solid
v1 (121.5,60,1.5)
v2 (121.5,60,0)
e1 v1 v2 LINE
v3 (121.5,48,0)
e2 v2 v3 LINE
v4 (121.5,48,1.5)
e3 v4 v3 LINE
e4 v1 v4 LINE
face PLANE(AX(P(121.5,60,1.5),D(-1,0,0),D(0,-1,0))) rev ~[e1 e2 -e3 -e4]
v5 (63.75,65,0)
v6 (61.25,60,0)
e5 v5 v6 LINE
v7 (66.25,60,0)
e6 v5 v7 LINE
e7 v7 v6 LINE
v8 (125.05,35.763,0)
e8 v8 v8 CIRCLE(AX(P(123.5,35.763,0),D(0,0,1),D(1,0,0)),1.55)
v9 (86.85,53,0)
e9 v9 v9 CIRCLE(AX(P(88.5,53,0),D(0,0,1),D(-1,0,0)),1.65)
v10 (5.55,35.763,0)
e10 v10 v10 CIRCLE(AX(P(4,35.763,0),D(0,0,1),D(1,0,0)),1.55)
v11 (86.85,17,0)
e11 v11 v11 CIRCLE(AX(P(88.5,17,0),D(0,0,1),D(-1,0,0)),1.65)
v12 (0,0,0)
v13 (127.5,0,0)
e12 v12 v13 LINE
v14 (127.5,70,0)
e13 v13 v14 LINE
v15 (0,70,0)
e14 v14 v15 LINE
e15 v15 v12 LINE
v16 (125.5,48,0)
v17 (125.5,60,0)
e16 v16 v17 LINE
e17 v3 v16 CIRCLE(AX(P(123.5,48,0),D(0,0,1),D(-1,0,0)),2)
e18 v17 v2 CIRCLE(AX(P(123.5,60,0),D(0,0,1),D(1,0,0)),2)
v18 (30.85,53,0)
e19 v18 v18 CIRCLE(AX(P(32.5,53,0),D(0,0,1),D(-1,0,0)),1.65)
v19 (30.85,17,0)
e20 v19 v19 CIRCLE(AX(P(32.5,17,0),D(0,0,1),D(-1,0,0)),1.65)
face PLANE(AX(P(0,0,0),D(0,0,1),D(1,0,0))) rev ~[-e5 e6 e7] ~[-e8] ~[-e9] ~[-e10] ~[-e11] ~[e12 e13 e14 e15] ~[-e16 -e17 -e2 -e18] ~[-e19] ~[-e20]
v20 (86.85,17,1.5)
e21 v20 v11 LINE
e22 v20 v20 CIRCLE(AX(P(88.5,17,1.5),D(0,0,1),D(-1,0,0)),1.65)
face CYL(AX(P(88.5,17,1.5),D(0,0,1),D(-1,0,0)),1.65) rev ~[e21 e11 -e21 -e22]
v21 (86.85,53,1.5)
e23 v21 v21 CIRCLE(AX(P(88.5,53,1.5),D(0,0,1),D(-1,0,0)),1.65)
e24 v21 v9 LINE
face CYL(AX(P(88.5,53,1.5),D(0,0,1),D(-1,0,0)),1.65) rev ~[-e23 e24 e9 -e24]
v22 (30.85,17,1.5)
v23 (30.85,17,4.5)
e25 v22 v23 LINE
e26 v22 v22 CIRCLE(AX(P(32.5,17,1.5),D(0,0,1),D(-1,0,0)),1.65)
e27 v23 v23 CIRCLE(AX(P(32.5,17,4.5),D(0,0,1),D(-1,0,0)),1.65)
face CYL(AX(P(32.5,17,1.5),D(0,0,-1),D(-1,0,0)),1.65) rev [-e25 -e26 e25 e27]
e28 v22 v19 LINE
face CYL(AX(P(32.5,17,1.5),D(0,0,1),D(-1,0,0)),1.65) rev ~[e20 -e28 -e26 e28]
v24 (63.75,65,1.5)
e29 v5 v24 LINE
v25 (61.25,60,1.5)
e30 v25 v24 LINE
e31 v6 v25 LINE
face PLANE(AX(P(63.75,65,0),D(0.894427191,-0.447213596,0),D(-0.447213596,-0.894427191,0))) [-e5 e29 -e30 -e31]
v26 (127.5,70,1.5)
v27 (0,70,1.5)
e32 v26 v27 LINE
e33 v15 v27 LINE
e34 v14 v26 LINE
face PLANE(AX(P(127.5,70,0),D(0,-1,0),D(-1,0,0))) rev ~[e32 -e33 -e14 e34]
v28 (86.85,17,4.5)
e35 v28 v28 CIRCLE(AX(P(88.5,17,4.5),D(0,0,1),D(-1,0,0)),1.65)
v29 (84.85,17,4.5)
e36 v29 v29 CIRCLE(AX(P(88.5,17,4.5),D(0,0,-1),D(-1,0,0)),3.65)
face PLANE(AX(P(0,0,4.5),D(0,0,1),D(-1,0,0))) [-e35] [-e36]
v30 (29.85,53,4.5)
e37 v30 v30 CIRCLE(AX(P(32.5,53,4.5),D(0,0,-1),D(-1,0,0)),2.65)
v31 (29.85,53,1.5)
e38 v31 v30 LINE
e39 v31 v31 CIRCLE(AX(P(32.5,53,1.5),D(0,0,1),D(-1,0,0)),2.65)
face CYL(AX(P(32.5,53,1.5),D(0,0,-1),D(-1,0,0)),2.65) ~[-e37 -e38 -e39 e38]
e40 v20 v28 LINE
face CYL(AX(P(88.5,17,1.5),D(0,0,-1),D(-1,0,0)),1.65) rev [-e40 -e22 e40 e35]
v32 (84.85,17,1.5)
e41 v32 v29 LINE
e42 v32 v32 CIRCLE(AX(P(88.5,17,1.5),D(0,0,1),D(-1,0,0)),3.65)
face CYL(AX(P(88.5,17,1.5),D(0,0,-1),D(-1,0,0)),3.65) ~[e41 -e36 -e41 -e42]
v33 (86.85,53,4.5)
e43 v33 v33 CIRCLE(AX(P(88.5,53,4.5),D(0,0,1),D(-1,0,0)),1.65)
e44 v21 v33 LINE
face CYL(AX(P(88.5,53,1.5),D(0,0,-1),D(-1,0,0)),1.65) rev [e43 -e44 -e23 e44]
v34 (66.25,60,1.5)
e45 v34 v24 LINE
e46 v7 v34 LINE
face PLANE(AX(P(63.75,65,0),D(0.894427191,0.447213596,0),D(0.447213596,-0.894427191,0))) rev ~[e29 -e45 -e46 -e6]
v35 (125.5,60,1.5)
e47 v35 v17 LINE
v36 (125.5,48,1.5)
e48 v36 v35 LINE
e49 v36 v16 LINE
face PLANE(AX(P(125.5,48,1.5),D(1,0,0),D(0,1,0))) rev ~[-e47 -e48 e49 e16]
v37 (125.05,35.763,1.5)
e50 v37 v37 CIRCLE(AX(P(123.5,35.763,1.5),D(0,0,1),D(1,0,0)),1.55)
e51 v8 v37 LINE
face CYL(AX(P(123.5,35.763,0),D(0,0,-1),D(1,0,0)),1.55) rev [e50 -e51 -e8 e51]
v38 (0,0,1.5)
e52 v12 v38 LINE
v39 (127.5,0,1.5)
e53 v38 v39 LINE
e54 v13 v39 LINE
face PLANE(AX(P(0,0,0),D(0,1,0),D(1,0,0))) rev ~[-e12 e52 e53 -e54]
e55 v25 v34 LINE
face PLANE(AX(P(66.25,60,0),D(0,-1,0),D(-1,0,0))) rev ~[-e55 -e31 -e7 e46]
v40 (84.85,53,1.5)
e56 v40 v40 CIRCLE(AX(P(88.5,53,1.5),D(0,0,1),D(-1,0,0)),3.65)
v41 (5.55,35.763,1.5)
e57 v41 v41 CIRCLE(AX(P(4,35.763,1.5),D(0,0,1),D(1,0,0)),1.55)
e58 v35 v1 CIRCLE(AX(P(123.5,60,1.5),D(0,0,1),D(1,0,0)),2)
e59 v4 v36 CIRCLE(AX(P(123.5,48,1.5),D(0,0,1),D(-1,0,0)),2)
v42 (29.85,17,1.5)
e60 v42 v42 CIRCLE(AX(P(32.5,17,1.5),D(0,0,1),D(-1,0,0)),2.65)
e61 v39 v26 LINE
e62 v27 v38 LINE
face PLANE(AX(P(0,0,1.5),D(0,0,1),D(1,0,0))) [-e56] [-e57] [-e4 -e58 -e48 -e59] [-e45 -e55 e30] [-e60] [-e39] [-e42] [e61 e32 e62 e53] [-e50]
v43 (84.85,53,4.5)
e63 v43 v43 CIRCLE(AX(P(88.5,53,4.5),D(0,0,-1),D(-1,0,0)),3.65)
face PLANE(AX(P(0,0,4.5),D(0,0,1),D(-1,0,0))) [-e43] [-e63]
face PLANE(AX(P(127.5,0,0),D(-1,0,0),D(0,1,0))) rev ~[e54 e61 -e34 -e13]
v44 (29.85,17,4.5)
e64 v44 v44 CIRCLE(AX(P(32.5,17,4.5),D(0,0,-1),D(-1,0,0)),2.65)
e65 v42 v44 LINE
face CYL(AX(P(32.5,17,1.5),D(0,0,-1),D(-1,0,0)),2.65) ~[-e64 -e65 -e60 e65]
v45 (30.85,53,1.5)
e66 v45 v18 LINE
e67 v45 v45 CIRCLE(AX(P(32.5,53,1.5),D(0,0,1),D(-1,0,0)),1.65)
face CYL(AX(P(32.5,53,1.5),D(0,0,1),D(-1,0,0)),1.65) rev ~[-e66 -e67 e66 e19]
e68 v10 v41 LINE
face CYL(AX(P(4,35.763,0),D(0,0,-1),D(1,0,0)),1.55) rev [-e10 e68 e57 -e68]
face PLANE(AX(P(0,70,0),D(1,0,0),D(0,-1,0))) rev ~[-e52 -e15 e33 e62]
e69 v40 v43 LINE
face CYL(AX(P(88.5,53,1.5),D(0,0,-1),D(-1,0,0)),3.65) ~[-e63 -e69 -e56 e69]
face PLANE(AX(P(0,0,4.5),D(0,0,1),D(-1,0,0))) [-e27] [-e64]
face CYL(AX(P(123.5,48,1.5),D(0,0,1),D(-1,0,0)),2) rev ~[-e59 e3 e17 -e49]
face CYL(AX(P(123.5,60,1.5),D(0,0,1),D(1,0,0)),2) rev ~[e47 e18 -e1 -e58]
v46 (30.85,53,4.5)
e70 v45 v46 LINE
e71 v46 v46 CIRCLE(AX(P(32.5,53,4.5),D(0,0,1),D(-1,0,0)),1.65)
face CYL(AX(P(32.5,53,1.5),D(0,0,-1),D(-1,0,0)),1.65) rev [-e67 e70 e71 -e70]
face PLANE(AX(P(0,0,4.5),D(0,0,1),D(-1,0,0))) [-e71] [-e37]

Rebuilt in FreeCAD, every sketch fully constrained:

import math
import FreeCAD as App
import Part
import Sketcher

doc = App.newDocument("Part")
params = doc.addObject("Spreadsheet::Sheet", "Params")
for row, (alias, value) in enumerate([
    ("sketch1_diameter", "3.1 mm"),
    ("sketch1_height", "70 mm"),
    ("sketch1_width", "127.5 mm"),
    ("pad1_length", "1.5 mm"),
    ("sketch2_width", "5 mm"),
    ("pocket1_length", "3 mm"),
    ("sketch3_diameter", "7.3 mm"),
    ("sketch3_diameter2", "3.3 mm"),
    ("sketch3_diameter3", "5.3 mm"),
    ("pad2_length", "3 mm"),
    ("sketch4_diameter", "3.3 mm"),
    ("pocket2_length", "4 mm"),
    ("sketch5_radius", "2 mm"),
    ("sketch5_height", "12 mm"),
    ("pocket3_length", "4 mm"),
], start=1):
    params.set(f"A{row}", alias)
    params.set(f"B{row}", "=" + value)
    params.setAlias(f"B{row}", alias)

body = doc.addObject("PartDesign::Body", "Body")

sketch1 = body.newObject("Sketcher::SketchObject", "Sketch")
sketch1.AttachmentSupport = (doc.getObject("XY_Plane"), [""])
sketch1.MapMode = "FlatFace"
sketch1.addGeometry(Part.LineSegment(App.Vector(0, 70, 0), App.Vector(0, 0, 0)), False)
sketch1.addGeometry(Part.LineSegment(App.Vector(0, 0, 0), App.Vector(127.5, 0, 0)), False)
sketch1.addGeometry(Part.LineSegment(App.Vector(127.5, 0, 0), App.Vector(127.5, 70, 0)), False)
sketch1.addGeometry(Part.LineSegment(App.Vector(127.5, 70, 0), App.Vector(0, 70, 0)), False)
sketch1.addGeometry(Part.Circle(App.Vector(4, 35.763, 0), App.Vector(0, 0, 1), 1.55), False)
sketch1.addGeometry(Part.Circle(App.Vector(123.5, 35.763, 0), App.Vector(0, 0, 1), 1.55), False)
sketch1.addConstraint(Sketcher.Constraint("Coincident", 0, 2, 1, 1))
sketch1.addConstraint(Sketcher.Constraint("Coincident", 1, 2, 2, 1))
sketch1.addConstraint(Sketcher.Constraint("Coincident", 2, 2, 3, 1))
sketch1.addConstraint(Sketcher.Constraint("Coincident", 3, 2, 0, 1))
sketch1.addConstraint(Sketcher.Constraint("Vertical", 0))
sketch1.addConstraint(Sketcher.Constraint("Horizontal", 1))
sketch1.addConstraint(Sketcher.Constraint("Vertical", 2))
sketch1.addConstraint(Sketcher.Constraint("Horizontal", 3))
sketch1.addConstraint(Sketcher.Constraint("Coincident", 0, 2, -1, 1))
sketch1.addConstraint(Sketcher.Constraint("Equal", 4, 5))
sketch1.addConstraint(Sketcher.Constraint("Horizontal", 4, 3, 5, 3))
sketch1.addConstraint(Sketcher.Constraint("Diameter", 4, 3.1))
sketch1.addConstraint(Sketcher.Constraint("DistanceY", 0, 2, 0, 1, 70.0))
sketch1.addConstraint(Sketcher.Constraint("DistanceX", 1, 1, 1, 2, 127.5))
sketch1.addConstraint(Sketcher.Constraint("DistanceX", -1, 1, 4, 3, 4.0))
sketch1.addConstraint(Sketcher.Constraint("DistanceX", 5, 3, 1, 2, 4.0))
sketch1.addConstraint(Sketcher.Constraint("DistanceY", -1, 1, 4, 3, 35.763))
sketch1.setExpression("Constraints[11]", "Params.sketch1_diameter")
sketch1.setExpression("Constraints[12]", "Params.sketch1_height")
sketch1.setExpression("Constraints[13]", "Params.sketch1_width")
pad1 = body.newObject("PartDesign::Pad", "Pad")
pad1.Profile = sketch1
pad1.setExpression("Length", "Params.pad1_length")

sketch2 = body.newObject("Sketcher::SketchObject", "Sketch001")
sketch2.AttachmentSupport = (doc.getObject("XY_Plane"), [""])
sketch2.MapMode = "FlatFace"
sketch2.addGeometry(Part.LineSegment(App.Vector(61.25, 60, 0), App.Vector(66.25, 60, 0)), False)
sketch2.addGeometry(Part.LineSegment(App.Vector(66.25, 60, 0), App.Vector(63.75, 65, 0)), False)
sketch2.addGeometry(Part.LineSegment(App.Vector(63.75, 65, 0), App.Vector(61.25, 60, 0)), False)
sketch2.addConstraint(Sketcher.Constraint("Coincident", 0, 2, 1, 1))
sketch2.addConstraint(Sketcher.Constraint("Coincident", 1, 2, 2, 1))
sketch2.addConstraint(Sketcher.Constraint("Coincident", 2, 2, 0, 1))
sketch2.addConstraint(Sketcher.Constraint("Horizontal", 0))
sketch2.addConstraint(Sketcher.Constraint("Equal", 1, 2))
sketch2.addConstraint(Sketcher.Constraint("DistanceX", 0, 1, 0, 2, 5.0))
sketch2.addConstraint(Sketcher.Constraint("DistanceY", 0, 2, 1, 2, 5.0))
sketch2.addConstraint(Sketcher.Constraint("DistanceY", -1, 1, 0, 2, 60.0))
sketch2.addConstraint(Sketcher.Constraint("DistanceX", -1, 1, 0, 2, 66.25))
sketch2.setExpression("Constraints[5]", "Params.sketch2_width")
pocket1 = body.newObject("PartDesign::Pocket", "Pocket")
pocket1.Profile = sketch2
pocket1.setExpression("Length", "Params.pocket1_length")
pocket1.Reversed = True

sketch3 = body.newObject("Sketcher::SketchObject", "Sketch002")
sketch3.AttachmentSupport = (doc.getObject("XY_Plane"), [""])
sketch3.MapMode = "FlatFace"
sketch3.AttachmentOffset = App.Placement(App.Vector(0, 0, 1.5), App.Rotation())
sketch3.addGeometry(Part.Circle(App.Vector(88.5, 17, 0), App.Vector(0, 0, 1), 3.65), False)
sketch3.addGeometry(Part.Circle(App.Vector(88.5, 17, 0), App.Vector(0, 0, 1), 1.65), False)
sketch3.addGeometry(Part.Circle(App.Vector(32.5, 17, 0), App.Vector(0, 0, 1), 2.65), False)
sketch3.addGeometry(Part.Circle(App.Vector(32.5, 17, 0), App.Vector(0, 0, 1), 1.65), False)
sketch3.addGeometry(Part.Circle(App.Vector(88.5, 53, 0), App.Vector(0, 0, 1), 3.65), False)
sketch3.addGeometry(Part.Circle(App.Vector(88.5, 53, 0), App.Vector(0, 0, 1), 1.65), False)
sketch3.addGeometry(Part.Circle(App.Vector(32.5, 53, 0), App.Vector(0, 0, 1), 2.65), False)
sketch3.addGeometry(Part.Circle(App.Vector(32.5, 53, 0), App.Vector(0, 0, 1), 1.65), False)
sketch3.addConstraint(Sketcher.Constraint("Coincident", 1, 3, 0, 3))
sketch3.addConstraint(Sketcher.Constraint("Coincident", 3, 3, 2, 3))
sketch3.addConstraint(Sketcher.Constraint("Coincident", 5, 3, 4, 3))
sketch3.addConstraint(Sketcher.Constraint("Coincident", 7, 3, 6, 3))
sketch3.addConstraint(Sketcher.Constraint("Equal", 1, 3))
sketch3.addConstraint(Sketcher.Constraint("Equal", 0, 4))
sketch3.addConstraint(Sketcher.Constraint("Equal", 3, 5))
sketch3.addConstraint(Sketcher.Constraint("Equal", 2, 6))
sketch3.addConstraint(Sketcher.Constraint("Equal", 5, 7))
sketch3.addConstraint(Sketcher.Constraint("Horizontal", 1, 3, 2, 3))
sketch3.addConstraint(Sketcher.Constraint("Horizontal", 5, 3, 6, 3))
sketch3.addConstraint(Sketcher.Constraint("Vertical", 1, 3, 4, 3))
sketch3.addConstraint(Sketcher.Constraint("Vertical", 3, 3, 6, 3))
sketch3.addConstraint(Sketcher.Constraint("Diameter", 0, 7.3))
sketch3.addConstraint(Sketcher.Constraint("Diameter", 1, 3.3))
sketch3.addConstraint(Sketcher.Constraint("Diameter", 2, 5.3))
sketch3.addConstraint(Sketcher.Constraint("DistanceY", -1, 1, 0, 3, 17.0))
sketch3.addConstraint(Sketcher.Constraint("DistanceY", -1, 1, 4, 3, 53.0))
sketch3.addConstraint(Sketcher.Constraint("DistanceX", 2, 3, 0, 3, 56.0))
sketch3.addConstraint(Sketcher.Constraint("DistanceX", -1, 1, 0, 3, 88.5))
sketch3.setExpression("Constraints[13]", "Params.sketch3_diameter")
sketch3.setExpression("Constraints[14]", "Params.sketch3_diameter2")
sketch3.setExpression("Constraints[15]", "Params.sketch3_diameter3")
pad2 = body.newObject("PartDesign::Pad", "Pad001")
pad2.Profile = sketch3
pad2.setExpression("Length", "Params.pad2_length")

sketch4 = body.newObject("Sketcher::SketchObject", "Sketch003")
sketch4.AttachmentSupport = (doc.getObject("XY_Plane"), [""])
sketch4.MapMode = "FlatFace"
sketch4.AttachmentOffset = App.Placement(App.Vector(0, 0, 1.5), App.Rotation())
sketch4.addGeometry(Part.Circle(App.Vector(32.5, 53, 0), App.Vector(0, 0, 1), 1.65), False)
sketch4.addGeometry(Part.Circle(App.Vector(32.5, 17, 0), App.Vector(0, 0, 1), 1.65), False)
sketch4.addGeometry(Part.Circle(App.Vector(88.5, 53, 0), App.Vector(0, 0, 1), 1.65), False)
sketch4.addGeometry(Part.Circle(App.Vector(88.5, 17, 0), App.Vector(0, 0, 1), 1.65), False)
sketch4.addConstraint(Sketcher.Constraint("Equal", 0, 1))
sketch4.addConstraint(Sketcher.Constraint("Equal", 1, 2))
sketch4.addConstraint(Sketcher.Constraint("Equal", 2, 3))
sketch4.addConstraint(Sketcher.Constraint("Horizontal", 0, 3, 2, 3))
sketch4.addConstraint(Sketcher.Constraint("Horizontal", 1, 3, 3, 3))
sketch4.addConstraint(Sketcher.Constraint("Vertical", 0, 3, 1, 3))
sketch4.addConstraint(Sketcher.Constraint("Vertical", 2, 3, 3, 3))
sketch4.addConstraint(Sketcher.Constraint("Diameter", 0, 3.3))
sketch4.addConstraint(Sketcher.Constraint("DistanceY", -1, 1, 0, 3, 53.0))
sketch4.addConstraint(Sketcher.Constraint("DistanceY", -1, 1, 1, 3, 17.0))
sketch4.addConstraint(Sketcher.Constraint("DistanceX", 0, 3, 2, 3, 56.0))
sketch4.addConstraint(Sketcher.Constraint("DistanceX", -1, 1, 0, 3, 32.5))
sketch4.setExpression("Constraints[7]", "Params.sketch4_diameter")
pocket2 = body.newObject("PartDesign::Pocket", "Pocket001")
pocket2.Profile = sketch4
pocket2.setExpression("Length", "Params.pocket2_length")

sketch5 = body.newObject("Sketcher::SketchObject", "Sketch004")
sketch5.AttachmentSupport = (doc.getObject("XY_Plane"), [""])
sketch5.MapMode = "FlatFace"
sketch5.AttachmentOffset = App.Placement(App.Vector(0, 0, 1.5), App.Rotation())
sketch5.addGeometry(Part.ArcOfCircle(Part.Circle(App.Vector(123.5, 48, 0), App.Vector(0, 0, 1), 2), math.radians(180), math.radians(360)), False)
sketch5.addGeometry(Part.LineSegment(App.Vector(125.5, 48, 0), App.Vector(125.5, 60, 0)), False)
sketch5.addGeometry(Part.ArcOfCircle(Part.Circle(App.Vector(123.5, 60, 0), App.Vector(0, 0, 1), 2), math.radians(0), math.radians(180)), False)
sketch5.addGeometry(Part.LineSegment(App.Vector(121.5, 60, 0), App.Vector(121.5, 48, 0)), False)
sketch5.addConstraint(Sketcher.Constraint("Tangent", 0, 2, 1, 1))
sketch5.addConstraint(Sketcher.Constraint("Tangent", 1, 2, 2, 1))
sketch5.addConstraint(Sketcher.Constraint("Tangent", 2, 2, 3, 1))
sketch5.addConstraint(Sketcher.Constraint("Tangent", 3, 2, 0, 1))
sketch5.addConstraint(Sketcher.Constraint("Vertical", 1))
sketch5.addConstraint(Sketcher.Constraint("Vertical", 3))
sketch5.addConstraint(Sketcher.Constraint("Radius", 0, 2.0))
sketch5.addConstraint(Sketcher.Constraint("DistanceY", 1, 1, 1, 2, 12.0))
sketch5.addConstraint(Sketcher.Constraint("DistanceY", -1, 1, 2, 3, 60.0))
sketch5.addConstraint(Sketcher.Constraint("DistanceX", -1, 1, 0, 3, 123.5))
sketch5.setExpression("Constraints[6]", "Params.sketch5_radius")
sketch5.setExpression("Constraints[7]", "Params.sketch5_height")
pocket3 = body.newObject("PartDesign::Pocket", "Pocket002")
pocket3.Profile = sketch5
pocket3.setExpression("Length", "Params.pocket3_length")

doc.recompute()
